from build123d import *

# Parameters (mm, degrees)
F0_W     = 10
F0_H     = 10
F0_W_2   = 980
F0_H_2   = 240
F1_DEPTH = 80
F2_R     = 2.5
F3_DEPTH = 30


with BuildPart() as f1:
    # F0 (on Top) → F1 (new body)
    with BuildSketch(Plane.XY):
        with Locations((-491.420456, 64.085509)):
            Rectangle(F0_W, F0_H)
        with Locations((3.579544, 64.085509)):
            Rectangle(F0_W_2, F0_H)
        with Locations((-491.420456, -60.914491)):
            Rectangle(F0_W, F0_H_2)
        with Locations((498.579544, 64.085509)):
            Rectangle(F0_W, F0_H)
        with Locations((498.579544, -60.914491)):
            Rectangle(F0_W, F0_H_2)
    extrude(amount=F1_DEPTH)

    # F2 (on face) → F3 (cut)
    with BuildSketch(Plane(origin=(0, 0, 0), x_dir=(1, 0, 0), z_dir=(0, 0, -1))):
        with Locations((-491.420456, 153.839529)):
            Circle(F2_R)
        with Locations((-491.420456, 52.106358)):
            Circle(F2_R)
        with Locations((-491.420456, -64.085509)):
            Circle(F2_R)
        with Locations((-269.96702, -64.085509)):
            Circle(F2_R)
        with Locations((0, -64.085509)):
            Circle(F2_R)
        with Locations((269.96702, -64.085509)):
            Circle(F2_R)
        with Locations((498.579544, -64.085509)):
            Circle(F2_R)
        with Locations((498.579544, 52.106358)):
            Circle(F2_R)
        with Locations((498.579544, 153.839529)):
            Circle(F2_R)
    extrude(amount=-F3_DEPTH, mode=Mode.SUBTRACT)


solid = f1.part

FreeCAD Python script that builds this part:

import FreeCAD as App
import Part
import Sketcher
from FreeCAD import Vector


def add_polygon(sketch, points):
    """Adds a closed chain of lines whose ends are joined by coincident constraints."""
    first, n = sketch.GeometryCount, len(points)
    for a, b in zip(points, points[1:] + points[:1]):
        sketch.addGeometry(Part.LineSegment(App.Vector(*a, 0), App.Vector(*b, 0)), False)
    for i in range(n):
        sketch.addConstraint(Sketcher.Constraint("Coincident", first + i, 2, first + (i + 1) % n, 1))

doc = App.newDocument("Part")
body = doc.addObject("PartDesign::Body", "Body")

# Sketch on XY plane
sketch1 = doc.addObject("Sketcher::SketchObject", "Sketch")
body.addObject(sketch1)
sketch1.AttachmentSupport = (doc.XY_Plane, [""])
sketch1.MapMode = "FlatFace"
add_polygon(sketch1, [(-496, 69), (-496, -181), (-486, -181), (-486, 59), (494, 59), (494, -181), (504, -181), (504, 69)])  # lines 0-7
sketch1.addConstraint(Sketcher.Constraint("Vertical", 0))
sketch1.addConstraint(Sketcher.Constraint("Horizontal", 1))
sketch1.addConstraint(Sketcher.Constraint("Vertical", 2))
sketch1.addConstraint(Sketcher.Constraint("Horizontal", 3))
sketch1.addConstraint(Sketcher.Constraint("Vertical", 4))
sketch1.addConstraint(Sketcher.Constraint("Horizontal", 5))
sketch1.addConstraint(Sketcher.Constraint("Vertical", 6))
sketch1.addConstraint(Sketcher.Constraint("Horizontal", 7))
sketch1.addConstraint(Sketcher.Constraint("Horizontal", 1, 2, 4, 2))
sketch1.addConstraint(Sketcher.Constraint("Equal", 1, 5))
sketch1.addConstraint(Sketcher.Constraint("DistanceX", 1, 1, 1, 2, 10.0))
sketch1.addConstraint(Sketcher.Constraint("DistanceX", 3, 1, 3, 2, 980.0))
sketch1.addConstraint(Sketcher.Constraint("DistanceY", 0, 2, 0, 1, 250.0))
sketch1.addConstraint(Sketcher.Constraint("DistanceY", 2, 1, 2, 2, 240.0))
sketch1.addConstraint(Sketcher.Constraint("DistanceY", 0, 2, -1, 1, 180.914491))
sketch1.addConstraint(Sketcher.Constraint("DistanceX", 0, 2, -1, 1, 496.420456))
pad1 = doc.addObject("PartDesign::Pad", "Pad")
body.addObject(pad1)
pad1.Profile = sketch1
pad1.Length = 80

# Sketch on XY plane
sketch2 = doc.addObject("Sketcher::SketchObject", "Sketch001")
body.addObject(sketch2)
sketch2.AttachmentSupport = (doc.XY_Plane, [""])
sketch2.MapMode = "FlatFace"
sketch2.addGeometry(Part.Circle(Vector(-491.4, -153.8, 0), Vector(0, 0, 1), 2.5), False)
sketch2.addGeometry(Part.Circle(Vector(-491.4, -52.1, 0), Vector(0, 0, 1), 2.5), False)
sketch2.addGeometry(Part.Circle(Vector(-491.4, 64.1, 0), Vector(0, 0, 1), 2.5), False)
sketch2.addGeometry(Part.Circle(Vector(-270, 64.1, 0), Vector(0, 0, 1), 2.5), False)
sketch2.addGeometry(Part.Circle(Vector(0, 64.1, 0), Vector(0, 0, 1), 2.5), False)
sketch2.addGeometry(Part.Circle(Vector(270, 64.1, 0), Vector(0, 0, 1), 2.5), False)
sketch2.addGeometry(Part.Circle(Vector(498.6, 64.1, 0), Vector(0, 0, 1), 2.5), False)
sketch2.addGeometry(Part.Circle(Vector(498.6, -52.1, 0), Vector(0, 0, 1), 2.5), False)
sketch2.addGeometry(Part.Circle(Vector(498.6, -153.8, 0), Vector(0, 0, 1), 2.5), False)
sketch2.addConstraint(Sketcher.Constraint("Equal", 0, 1))
sketch2.addConstraint(Sketcher.Constraint("Equal", 1, 2))
sketch2.addConstraint(Sketcher.Constraint("Equal", 2, 3))
sketch2.addConstraint(Sketcher.Constraint("Equal", 3, 4))
sketch2.addConstraint(Sketcher.Constraint("Equal", 4, 5))
sketch2.addConstraint(Sketcher.Constraint("Equal", 5, 6))
sketch2.addConstraint(Sketcher.Constraint("Equal", 6, 7))
sketch2.addConstraint(Sketcher.Constraint("Equal", 7, 8))
sketch2.addConstraint(Sketcher.Constraint("Symmetric", 3, 3, 5, 3, -2))
sketch2.addConstraint(Sketcher.Constraint("PointOnObject", 4, 3, -2))
sketch2.addConstraint(Sketcher.Constraint("Horizontal", 2, 3, 3, 3))
sketch2.addConstraint(Sketcher.Constraint("Horizontal", 3, 3, 4, 3))
sketch2.addConstraint(Sketcher.Constraint("Horizontal", 5, 3, 6, 3))
sketch2.addConstraint(Sketcher.Constraint("Horizontal", 1, 3, 7, 3))
sketch2.addConstraint(Sketcher.Constraint("Horizontal", 0, 3, 8, 3))
sketch2.addConstraint(Sketcher.Constraint("Vertical", 0, 3, 1, 3))
sketch2.addConstraint(Sketcher.Constraint("Vertical", 1, 3, 2, 3))
sketch2.addConstraint(Sketcher.Constraint("Vertical", 6, 3, 7, 3))
sketch2.addConstraint(Sketcher.Constraint("Vertical", 7, 3, 8, 3))
sketch2.addConstraint(Sketcher.Constraint("Diameter", 0, 5.0))
sketch2.addConstraint(Sketcher.Constraint("DistanceX", 2, 3, 6, 3, 990.0))
sketch2.addConstraint(Sketcher.Constraint("DistanceY", 0, 3, -1, 1, 153.839529))
sketch2.addConstraint(Sketcher.Constraint("DistanceY", -1, 1, 2, 3, 64.085509))
sketch2.addConstraint(Sketcher.Constraint("DistanceX", 3, 3, -1, 1, 269.96702))
sketch2.addConstraint(Sketcher.Constraint("DistanceY", 0, 3, 1, 3, 101.733171))
sketch2.addConstraint(Sketcher.Constraint("DistanceX", 0, 3, -1, 1, 491.420456))
pocket1 = doc.addObject("PartDesign::Pocket", "Pocket")
body.addObject(pocket1)
pocket1.Profile = sketch2
pocket1.Length = 30
pocket1.Reversed = True

doc.recompute()
